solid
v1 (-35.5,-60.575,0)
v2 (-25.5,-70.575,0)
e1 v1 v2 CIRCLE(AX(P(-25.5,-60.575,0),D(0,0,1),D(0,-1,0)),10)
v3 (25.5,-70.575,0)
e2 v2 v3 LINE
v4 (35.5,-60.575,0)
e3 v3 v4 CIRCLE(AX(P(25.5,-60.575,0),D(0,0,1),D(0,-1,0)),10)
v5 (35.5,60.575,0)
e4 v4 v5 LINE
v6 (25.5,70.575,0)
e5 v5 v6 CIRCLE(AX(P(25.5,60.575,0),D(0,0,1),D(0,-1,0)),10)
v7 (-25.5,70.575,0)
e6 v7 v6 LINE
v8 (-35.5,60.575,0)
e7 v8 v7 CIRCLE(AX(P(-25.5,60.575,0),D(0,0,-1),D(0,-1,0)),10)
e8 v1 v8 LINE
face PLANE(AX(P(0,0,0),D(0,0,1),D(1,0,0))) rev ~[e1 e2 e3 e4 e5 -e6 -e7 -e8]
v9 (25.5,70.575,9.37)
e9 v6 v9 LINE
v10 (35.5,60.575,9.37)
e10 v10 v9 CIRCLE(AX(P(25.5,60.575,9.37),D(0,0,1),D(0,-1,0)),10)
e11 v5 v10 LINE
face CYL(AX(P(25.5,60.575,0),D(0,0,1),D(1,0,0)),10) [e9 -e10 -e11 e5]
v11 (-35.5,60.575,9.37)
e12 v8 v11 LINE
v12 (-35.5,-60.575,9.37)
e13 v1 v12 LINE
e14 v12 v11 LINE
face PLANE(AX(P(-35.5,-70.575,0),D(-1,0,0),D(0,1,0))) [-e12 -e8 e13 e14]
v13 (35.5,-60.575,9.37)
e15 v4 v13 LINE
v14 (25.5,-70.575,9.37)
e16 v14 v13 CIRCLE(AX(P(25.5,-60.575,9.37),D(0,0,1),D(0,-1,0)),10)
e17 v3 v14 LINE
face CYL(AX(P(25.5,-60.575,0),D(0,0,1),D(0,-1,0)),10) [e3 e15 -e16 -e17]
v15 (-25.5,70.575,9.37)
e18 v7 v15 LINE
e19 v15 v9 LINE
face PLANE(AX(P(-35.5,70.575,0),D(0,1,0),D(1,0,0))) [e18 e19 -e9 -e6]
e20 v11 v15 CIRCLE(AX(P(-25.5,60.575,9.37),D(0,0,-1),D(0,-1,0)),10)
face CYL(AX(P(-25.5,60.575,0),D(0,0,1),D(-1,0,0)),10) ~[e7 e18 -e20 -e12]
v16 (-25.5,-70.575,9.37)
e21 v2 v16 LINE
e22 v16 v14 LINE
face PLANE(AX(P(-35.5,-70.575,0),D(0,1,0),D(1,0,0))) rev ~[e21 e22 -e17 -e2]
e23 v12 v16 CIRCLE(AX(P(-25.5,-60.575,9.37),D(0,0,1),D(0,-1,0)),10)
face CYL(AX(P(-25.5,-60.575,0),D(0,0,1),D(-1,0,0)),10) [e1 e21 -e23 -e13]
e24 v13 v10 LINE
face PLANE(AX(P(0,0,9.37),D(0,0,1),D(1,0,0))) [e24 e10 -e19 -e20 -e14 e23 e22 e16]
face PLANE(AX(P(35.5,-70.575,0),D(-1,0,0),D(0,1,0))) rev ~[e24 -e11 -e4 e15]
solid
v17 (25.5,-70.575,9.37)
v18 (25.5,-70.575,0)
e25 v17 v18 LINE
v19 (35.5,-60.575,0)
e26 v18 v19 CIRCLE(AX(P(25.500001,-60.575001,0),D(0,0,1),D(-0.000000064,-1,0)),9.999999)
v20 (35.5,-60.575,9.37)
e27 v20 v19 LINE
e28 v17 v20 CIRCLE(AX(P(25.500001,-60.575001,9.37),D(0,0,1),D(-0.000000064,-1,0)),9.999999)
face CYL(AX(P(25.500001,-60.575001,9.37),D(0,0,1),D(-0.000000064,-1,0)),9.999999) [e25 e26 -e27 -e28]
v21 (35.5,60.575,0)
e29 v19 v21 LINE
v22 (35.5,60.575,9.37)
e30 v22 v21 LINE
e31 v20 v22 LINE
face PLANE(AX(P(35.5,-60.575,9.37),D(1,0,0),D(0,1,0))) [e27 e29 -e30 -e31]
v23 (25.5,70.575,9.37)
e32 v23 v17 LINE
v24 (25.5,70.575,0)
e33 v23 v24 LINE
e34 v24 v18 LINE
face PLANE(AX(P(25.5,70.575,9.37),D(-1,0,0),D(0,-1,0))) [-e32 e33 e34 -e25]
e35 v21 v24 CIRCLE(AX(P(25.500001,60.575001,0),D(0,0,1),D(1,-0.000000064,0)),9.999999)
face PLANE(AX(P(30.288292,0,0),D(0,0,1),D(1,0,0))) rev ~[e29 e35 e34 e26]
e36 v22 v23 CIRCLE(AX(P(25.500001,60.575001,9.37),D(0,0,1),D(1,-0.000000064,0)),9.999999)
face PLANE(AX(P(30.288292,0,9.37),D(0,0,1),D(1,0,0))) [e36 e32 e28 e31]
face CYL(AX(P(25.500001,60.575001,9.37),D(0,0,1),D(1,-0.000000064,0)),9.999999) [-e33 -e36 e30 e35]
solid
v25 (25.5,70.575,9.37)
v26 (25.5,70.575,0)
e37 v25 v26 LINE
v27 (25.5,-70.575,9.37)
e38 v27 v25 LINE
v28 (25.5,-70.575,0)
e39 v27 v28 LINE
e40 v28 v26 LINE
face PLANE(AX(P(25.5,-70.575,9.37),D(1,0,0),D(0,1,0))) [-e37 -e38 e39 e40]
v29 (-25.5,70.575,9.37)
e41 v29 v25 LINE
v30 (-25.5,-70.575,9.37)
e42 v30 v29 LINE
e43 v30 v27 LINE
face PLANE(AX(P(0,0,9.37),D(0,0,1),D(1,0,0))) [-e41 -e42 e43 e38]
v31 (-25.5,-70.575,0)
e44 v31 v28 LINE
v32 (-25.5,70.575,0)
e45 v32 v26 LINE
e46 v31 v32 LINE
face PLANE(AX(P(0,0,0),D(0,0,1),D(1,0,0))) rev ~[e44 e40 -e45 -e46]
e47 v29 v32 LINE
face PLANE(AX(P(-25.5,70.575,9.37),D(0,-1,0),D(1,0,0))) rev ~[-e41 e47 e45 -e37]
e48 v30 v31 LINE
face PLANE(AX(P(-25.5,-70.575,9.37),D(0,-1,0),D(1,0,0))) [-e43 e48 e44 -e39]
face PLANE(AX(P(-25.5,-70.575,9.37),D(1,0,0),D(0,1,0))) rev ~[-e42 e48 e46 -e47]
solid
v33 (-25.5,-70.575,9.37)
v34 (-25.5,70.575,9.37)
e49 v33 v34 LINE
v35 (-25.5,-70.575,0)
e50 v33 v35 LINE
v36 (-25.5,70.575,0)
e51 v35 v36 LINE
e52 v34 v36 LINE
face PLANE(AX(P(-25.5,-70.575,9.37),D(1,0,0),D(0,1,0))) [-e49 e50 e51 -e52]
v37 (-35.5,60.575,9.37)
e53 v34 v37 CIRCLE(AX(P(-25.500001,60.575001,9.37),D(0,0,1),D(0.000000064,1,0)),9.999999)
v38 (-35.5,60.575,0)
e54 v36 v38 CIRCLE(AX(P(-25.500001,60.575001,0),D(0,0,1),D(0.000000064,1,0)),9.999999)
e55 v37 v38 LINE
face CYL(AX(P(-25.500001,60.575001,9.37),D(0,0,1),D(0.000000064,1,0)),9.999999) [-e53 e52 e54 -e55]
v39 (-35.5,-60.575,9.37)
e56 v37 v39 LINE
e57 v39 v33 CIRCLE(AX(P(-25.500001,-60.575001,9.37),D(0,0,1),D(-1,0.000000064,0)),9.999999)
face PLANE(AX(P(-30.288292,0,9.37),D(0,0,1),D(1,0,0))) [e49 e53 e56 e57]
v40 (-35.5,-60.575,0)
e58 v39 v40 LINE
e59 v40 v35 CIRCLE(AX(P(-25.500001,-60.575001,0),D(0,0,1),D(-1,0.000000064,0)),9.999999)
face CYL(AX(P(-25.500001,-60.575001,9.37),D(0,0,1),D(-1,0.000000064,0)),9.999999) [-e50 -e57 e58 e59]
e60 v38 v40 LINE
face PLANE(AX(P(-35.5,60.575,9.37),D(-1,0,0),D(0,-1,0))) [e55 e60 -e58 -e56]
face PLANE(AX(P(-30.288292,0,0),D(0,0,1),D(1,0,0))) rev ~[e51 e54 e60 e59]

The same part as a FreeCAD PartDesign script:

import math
import FreeCAD as App
import Part
import Sketcher

V = App.Vector


def edges_at(feature, points):
    """Names of the edges that pass closest to the given points."""
    edges = feature.Shape.Edges
    near = lambda p: min(range(len(edges)), key=lambda i: edges[i].distToShape(Part.Vertex(*p))[0])
    return sorted({f"Edge{near(p) + 1}" for p in points})

doc = App.newDocument("Part")
body = doc.addObject("PartDesign::Body", "Body")

sketch1 = doc.addObject("Sketcher::SketchObject", "Sketch")
body.addObject(sketch1)
sketch1.AttachmentSupport = (doc.XY_Plane, [""])
sketch1.MapMode = "FlatFace"
sketch1.addGeometry([
    Part.LineSegment(V(-36, 71, 0), V(-36, -71, 0)),
    Part.LineSegment(V(-36, -71, 0), V(36, -71, 0)),
    Part.LineSegment(V(36, -71, 0), V(36, 71, 0)),
    Part.LineSegment(V(36, 71, 0), V(-36, 71, 0)),
], False)
sketch1.addConstraint([
    Sketcher.Constraint("Coincident", 0, 2, 1, 1),
    Sketcher.Constraint("Coincident", 1, 2, 2, 1),
    Sketcher.Constraint("Coincident", 2, 2, 3, 1),
    Sketcher.Constraint("Coincident", 3, 2, 0, 1),
    Sketcher.Constraint("Vertical", 0),
    Sketcher.Constraint("Horizontal", 1),
    Sketcher.Constraint("Vertical", 2),
    Sketcher.Constraint("Horizontal", 3),
    Sketcher.Constraint("Symmetric", 0, 2, 2, 2, -1, 1),
    Sketcher.Constraint("DistanceX", 1, 1, 1, 2, 71.0),
    Sketcher.Constraint("DistanceY", 0, 2, 0, 1, 141.15),
])
pad1 = doc.addObject("PartDesign::Pad", "Pad")
body.addObject(pad1)
pad1.Profile = sketch1
pad1.Length = 9.37
doc.recompute()

fillet = doc.addObject("PartDesign::Fillet", "Fillet")
body.addObject(fillet)
fillet.Base = (pad1, edges_at(pad1, [
    (35.5, -70.575, 4.685),
    (-35.5, -70.575, 4.685),
    (35.5, 70.575, 4.685),
    (-35.5, 70.575, 4.685),
]))
fillet.Radius = 10
body2 = doc.addObject("PartDesign::Body", "Body001")
body2.AllowCompound = True

sketch2 = doc.addObject("Sketcher::SketchObject", "Sketch001")
body2.addObject(sketch2)
sketch2.AttachmentSupport = (doc.getObject("XY_Plane001"), [""])
sketch2.MapMode = "FlatFace"
sketch2.AttachmentOffset = App.Placement(V(0, 0, 9.37), App.Rotation())
sketch2.addGeometry([
    Part.LineSegment(V(-26, -71, 0), V(-26, 71, 0)),
    Part.ArcOfCircle(Part.Circle(V(-26, 61, 0), V(0, 0, 1), 10), math.radians(90), math.radians(180)),
    Part.LineSegment(V(-36, 61, 0), V(-36, -61, 0)),
    Part.ArcOfCircle(Part.Circle(V(-26, -61, 0), V(0, 0, 1), 10), math.radians(180), math.radians(270)),
    Part.ArcOfCircle(Part.Circle(V(26, 61, 0), V(0, 0, 1), 10), math.radians(0), math.radians(90)),
    Part.LineSegment(V(26, 71, 0), V(26, -71, 0)),
    Part.ArcOfCircle(Part.Circle(V(26, -61, 0), V(0, 0, 1), 10), math.radians(-90), math.radians(0)),
    Part.LineSegment(V(36, -61, 0), V(36, 61, 0)),
], False)
sketch2.addConstraint([
    Sketcher.Constraint("Coincident", 0, 2, 1, 1),
    Sketcher.Constraint("Tangent", 1, 2, 2, 1),
    Sketcher.Constraint("Tangent", 2, 2, 3, 1),
    Sketcher.Constraint("Coincident", 3, 2, 0, 1),
    Sketcher.Constraint("Coincident", 4, 2, 5, 1),
    Sketcher.Constraint("Coincident", 5, 2, 6, 1),
    Sketcher.Constraint("Tangent", 6, 2, 7, 1),
    Sketcher.Constraint("Tangent", 7, 2, 4, 1),
    Sketcher.Constraint("Vertical", 0),
    Sketcher.Constraint("Vertical", 2),
    Sketcher.Constraint("Vertical", 5),
    Sketcher.Constraint("Vertical", 7),
    Sketcher.Constraint("Equal", 1, 3),
    Sketcher.Constraint("Equal", 3, 4),
    Sketcher.Constraint("Equal", 4, 6),
    Sketcher.Constraint("Symmetric", 3, 3, 4, 3, -1, 1),
    Sketcher.Constraint("Symmetric", 0, 2, 5, 2, -1, 1),
    Sketcher.Constraint("Horizontal", 1, 3, 4, 3),
    Sketcher.Constraint("Vertical", 3, 3, 0, 2),
    Sketcher.Constraint("Radius", 1, 9.999999),
    Sketcher.Constraint("DistanceX", 1, 3, 4, 3, 51.000001),
    Sketcher.Constraint("DistanceY", 0, 1, 0, 2, 141.15),
])
pad2 = doc.addObject("PartDesign::Pad", "Pad001")
body2.addObject(pad2)
pad2.Profile = sketch2
pad2.Length = 9.37
pad2.Reversed = True
body3 = doc.addObject("PartDesign::Body", "Body002")

sketch3 = doc.addObject("Sketcher::SketchObject", "Sketch002")
body3.addObject(sketch3)
sketch3.AttachmentSupport = (doc.getObject("XY_Plane002"), [""])
sketch3.MapMode = "FlatFace"
sketch3.AttachmentOffset = App.Placement(V(0, 0, 9.37), App.Rotation())
sketch3.addGeometry([
    Part.LineSegment(V(-26, 71, 0), V(-26, -71, 0)),
    Part.LineSegment(V(-26, -71, 0), V(26, -71, 0)),
    Part.LineSegment(V(26, -71, 0), V(26, 71, 0)),
    Part.LineSegment(V(26, 71, 0), V(-26, 71, 0)),
], False)
sketch3.addConstraint([
    Sketcher.Constraint("Coincident", 0, 2, 1, 1),
    Sketcher.Constraint("Coincident", 1, 2, 2, 1),
    Sketcher.Constraint("Coincident", 2, 2, 3, 1),
    Sketcher.Constraint("Coincident", 3, 2, 0, 1),
    Sketcher.Constraint("Vertical", 0),
    Sketcher.Constraint("Horizontal", 1),
    Sketcher.Constraint("Vertical", 2),
    Sketcher.Constraint("Horizontal", 3),
    Sketcher.Constraint("Symmetric", 0, 2, 2, 2, -1, 1),
    Sketcher.Constraint("DistanceX", 1, 1, 1, 2, 51.0),
    Sketcher.Constraint("DistanceY", 0, 2, 0, 1, 141.15),
])
pad3 = doc.addObject("PartDesign::Pad", "Pad002")
body3.addObject(pad3)
pad3.Profile = sketch3
pad3.Length = 9.37
pad3.Reversed = True

doc.recompute()
